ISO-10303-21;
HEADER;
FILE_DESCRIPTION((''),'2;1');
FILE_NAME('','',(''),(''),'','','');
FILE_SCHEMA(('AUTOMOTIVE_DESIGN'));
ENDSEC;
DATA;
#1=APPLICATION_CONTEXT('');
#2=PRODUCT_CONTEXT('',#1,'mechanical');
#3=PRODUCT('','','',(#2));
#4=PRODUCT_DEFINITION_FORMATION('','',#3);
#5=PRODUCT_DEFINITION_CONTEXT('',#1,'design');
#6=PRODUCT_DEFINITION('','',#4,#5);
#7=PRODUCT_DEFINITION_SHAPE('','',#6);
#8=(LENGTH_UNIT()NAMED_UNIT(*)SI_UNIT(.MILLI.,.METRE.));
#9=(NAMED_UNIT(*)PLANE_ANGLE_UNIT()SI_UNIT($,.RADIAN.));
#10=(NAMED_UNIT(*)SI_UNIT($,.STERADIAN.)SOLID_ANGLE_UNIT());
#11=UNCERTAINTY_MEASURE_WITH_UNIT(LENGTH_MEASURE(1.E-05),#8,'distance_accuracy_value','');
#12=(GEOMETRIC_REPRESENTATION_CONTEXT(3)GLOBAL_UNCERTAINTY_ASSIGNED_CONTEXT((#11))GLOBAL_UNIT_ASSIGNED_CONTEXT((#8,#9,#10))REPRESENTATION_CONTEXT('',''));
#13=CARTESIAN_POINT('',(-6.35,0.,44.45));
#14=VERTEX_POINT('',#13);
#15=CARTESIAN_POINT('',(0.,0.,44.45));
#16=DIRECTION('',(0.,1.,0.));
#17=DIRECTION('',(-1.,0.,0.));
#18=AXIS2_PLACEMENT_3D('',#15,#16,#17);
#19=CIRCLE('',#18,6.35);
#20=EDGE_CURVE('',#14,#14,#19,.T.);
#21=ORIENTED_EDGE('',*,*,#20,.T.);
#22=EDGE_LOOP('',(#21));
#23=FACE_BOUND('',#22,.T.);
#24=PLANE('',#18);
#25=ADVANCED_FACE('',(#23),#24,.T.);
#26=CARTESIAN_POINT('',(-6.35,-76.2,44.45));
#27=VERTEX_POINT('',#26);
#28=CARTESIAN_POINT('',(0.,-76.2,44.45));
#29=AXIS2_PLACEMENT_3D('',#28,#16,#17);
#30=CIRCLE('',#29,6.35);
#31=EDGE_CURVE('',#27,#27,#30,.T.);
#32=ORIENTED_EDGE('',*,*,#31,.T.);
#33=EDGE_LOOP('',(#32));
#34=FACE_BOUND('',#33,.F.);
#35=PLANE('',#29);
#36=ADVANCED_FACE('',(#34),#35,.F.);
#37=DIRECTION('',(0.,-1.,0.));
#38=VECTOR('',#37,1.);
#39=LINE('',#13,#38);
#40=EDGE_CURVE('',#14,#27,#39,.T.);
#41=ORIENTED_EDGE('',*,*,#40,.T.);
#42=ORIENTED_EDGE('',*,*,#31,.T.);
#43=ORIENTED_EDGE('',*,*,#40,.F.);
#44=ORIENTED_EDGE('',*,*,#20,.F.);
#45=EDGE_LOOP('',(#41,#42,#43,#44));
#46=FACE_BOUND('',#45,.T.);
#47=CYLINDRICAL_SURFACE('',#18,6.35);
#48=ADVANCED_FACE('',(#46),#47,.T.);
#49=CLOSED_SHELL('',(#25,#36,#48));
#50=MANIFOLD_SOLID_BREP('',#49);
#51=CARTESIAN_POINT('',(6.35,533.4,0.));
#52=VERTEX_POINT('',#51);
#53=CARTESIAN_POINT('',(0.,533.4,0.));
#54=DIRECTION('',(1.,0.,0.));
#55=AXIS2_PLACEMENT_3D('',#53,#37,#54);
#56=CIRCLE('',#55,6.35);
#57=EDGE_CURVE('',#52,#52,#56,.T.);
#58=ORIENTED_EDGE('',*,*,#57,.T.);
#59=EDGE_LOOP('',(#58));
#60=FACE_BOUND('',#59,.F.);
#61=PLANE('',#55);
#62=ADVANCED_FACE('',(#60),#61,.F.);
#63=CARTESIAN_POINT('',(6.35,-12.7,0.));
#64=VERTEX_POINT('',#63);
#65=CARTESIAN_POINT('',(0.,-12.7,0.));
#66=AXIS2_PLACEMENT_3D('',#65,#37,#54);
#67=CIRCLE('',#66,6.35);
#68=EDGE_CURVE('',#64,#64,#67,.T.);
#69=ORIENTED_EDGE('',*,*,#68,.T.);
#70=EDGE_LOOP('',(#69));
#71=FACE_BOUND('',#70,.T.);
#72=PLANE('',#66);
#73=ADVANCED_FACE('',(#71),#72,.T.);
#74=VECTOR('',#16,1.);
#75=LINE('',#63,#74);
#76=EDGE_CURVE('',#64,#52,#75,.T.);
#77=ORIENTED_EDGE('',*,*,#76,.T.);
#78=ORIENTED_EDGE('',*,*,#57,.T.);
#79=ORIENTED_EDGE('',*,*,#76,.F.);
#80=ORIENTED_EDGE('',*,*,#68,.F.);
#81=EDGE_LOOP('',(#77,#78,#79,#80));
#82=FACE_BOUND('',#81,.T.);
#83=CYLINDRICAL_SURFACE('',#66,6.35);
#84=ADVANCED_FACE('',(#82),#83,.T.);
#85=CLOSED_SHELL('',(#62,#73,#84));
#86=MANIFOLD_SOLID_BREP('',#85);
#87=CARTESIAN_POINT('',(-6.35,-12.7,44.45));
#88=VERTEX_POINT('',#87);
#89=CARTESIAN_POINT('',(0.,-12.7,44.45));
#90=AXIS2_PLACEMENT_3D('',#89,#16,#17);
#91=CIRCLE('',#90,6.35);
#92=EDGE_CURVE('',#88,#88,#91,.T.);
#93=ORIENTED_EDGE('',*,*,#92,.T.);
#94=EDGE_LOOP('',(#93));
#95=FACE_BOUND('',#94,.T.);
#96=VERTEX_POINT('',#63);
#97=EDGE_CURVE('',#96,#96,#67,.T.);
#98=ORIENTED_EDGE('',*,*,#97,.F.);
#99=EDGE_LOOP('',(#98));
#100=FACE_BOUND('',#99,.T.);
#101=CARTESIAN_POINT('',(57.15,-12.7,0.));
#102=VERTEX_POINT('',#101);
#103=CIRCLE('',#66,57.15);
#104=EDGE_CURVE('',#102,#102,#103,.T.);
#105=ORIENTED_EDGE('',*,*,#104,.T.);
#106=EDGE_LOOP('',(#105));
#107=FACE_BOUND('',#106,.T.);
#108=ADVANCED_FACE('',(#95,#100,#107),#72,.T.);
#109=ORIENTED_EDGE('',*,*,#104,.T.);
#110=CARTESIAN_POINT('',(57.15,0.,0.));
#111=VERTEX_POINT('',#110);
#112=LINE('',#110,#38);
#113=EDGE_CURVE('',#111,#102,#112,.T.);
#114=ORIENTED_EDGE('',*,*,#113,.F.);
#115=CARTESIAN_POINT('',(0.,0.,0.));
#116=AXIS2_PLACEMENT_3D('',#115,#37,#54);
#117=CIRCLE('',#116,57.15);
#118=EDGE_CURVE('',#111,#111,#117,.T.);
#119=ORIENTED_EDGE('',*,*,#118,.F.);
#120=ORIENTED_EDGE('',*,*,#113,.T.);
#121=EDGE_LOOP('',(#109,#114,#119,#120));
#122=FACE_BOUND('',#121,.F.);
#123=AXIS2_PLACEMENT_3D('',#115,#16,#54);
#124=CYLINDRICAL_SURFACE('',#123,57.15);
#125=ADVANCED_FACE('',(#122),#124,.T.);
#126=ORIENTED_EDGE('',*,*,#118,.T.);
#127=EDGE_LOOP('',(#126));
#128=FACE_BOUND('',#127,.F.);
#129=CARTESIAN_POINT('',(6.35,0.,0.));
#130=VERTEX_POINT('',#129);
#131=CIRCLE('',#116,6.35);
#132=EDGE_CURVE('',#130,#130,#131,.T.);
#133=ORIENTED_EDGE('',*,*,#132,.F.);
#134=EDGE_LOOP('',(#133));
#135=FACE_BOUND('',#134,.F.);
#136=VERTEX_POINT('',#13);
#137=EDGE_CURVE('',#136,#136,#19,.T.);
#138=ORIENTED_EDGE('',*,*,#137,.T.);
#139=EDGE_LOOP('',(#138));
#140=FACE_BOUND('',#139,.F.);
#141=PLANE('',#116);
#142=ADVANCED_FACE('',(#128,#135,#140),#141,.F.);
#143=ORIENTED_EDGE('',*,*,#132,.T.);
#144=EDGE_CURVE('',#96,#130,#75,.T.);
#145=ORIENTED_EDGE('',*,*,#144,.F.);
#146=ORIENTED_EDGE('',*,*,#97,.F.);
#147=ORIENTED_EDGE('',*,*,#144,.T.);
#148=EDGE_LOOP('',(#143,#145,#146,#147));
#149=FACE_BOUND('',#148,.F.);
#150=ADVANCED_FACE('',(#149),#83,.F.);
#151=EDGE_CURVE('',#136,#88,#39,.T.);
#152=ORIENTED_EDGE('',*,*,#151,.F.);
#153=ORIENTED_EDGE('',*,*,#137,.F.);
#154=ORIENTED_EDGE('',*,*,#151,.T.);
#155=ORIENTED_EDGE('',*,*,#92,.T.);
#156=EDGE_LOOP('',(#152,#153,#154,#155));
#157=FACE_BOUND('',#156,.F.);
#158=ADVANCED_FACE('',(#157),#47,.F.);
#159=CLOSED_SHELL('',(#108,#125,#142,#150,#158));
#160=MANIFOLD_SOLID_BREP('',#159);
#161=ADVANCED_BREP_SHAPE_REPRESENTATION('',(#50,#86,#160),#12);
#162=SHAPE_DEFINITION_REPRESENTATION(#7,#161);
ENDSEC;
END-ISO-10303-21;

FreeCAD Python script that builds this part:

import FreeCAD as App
import Part
import Sketcher
Q = App.Units.Quantity

doc = App.newDocument("Part")
body = doc.addObject("PartDesign::Body", "Body")

# Sketch on XZ plane
sketch1 = body.newObject("Sketcher::SketchObject", "Sketch")
sketch1.AttachmentSupport = (doc.getObject("XZ_Plane"), [""])
sketch1.MapMode = "FlatFace"
sketch1.addGeometry(Part.Circle(App.Vector(0, 0, 0), App.Vector(0, 0, 1), 57.15), False)
sketch1.addConstraint(Sketcher.Constraint("Coincident", 0, 3, -1, 1))
sketch1.addConstraint(Sketcher.Constraint("Diameter", 0, Q("4.5 in")))
pad1 = body.newObject("PartDesign::Pad", "Pad")
pad1.Profile = sketch1
pad1.Length = Q("0.5 in")

# Sketch on XZ plane
sketch2 = body.newObject("Sketcher::SketchObject", "Sketch001")
sketch2.AttachmentSupport = (doc.getObject("XZ_Plane"), [""])
sketch2.MapMode = "FlatFace"
sketch2.AttachmentOffset = App.Placement(App.Vector(0, 0, 0.5 * 25.4), App.Rotation())
sketch2.addGeometry(Part.Circle(App.Vector(0, 0, 0), App.Vector(0, 0, 1), 6.35), False)
sketch2.addConstraint(Sketcher.Constraint("Coincident", 0, 3, -1, 1))
sketch2.addConstraint(Sketcher.Constraint("Diameter", 0, Q("0.5 in")))
pocket1 = body.newObject("PartDesign::Pocket", "Pocket")
pocket1.Profile = sketch2
pocket1.Type = "ThroughAll"

# Sketch on XZ plane
sketch3 = body.newObject("Sketcher::SketchObject", "Sketch002")
sketch3.AttachmentSupport = (doc.getObject("XZ_Plane"), [""])
sketch3.MapMode = "FlatFace"
sketch3.addGeometry(Part.Circle(App.Vector(0, 44.45, 0), App.Vector(0, 0, 1), 6.35), False)
sketch3.addConstraint(Sketcher.Constraint("PointOnObject", 0, 3, -2))
sketch3.addConstraint(Sketcher.Constraint("Diameter", 0, Q("0.5 in")))
sketch3.addConstraint(Sketcher.Constraint("DistanceY", -1, 1, 0, 3, Q("1.75 in")))
pocket2 = body.newObject("PartDesign::Pocket", "Pocket001")
pocket2.Profile = sketch3
pocket2.Type = "ThroughAll"
pocket2.Reversed = True
body2 = doc.addObject("PartDesign::Body", "Body001")

# Sketch on XZ plane
sketch4 = body2.newObject("Sketcher::SketchObject", "Sketch003")
sketch4.AttachmentSupport = (doc.getObject("XZ_Plane001"), [""])
sketch4.MapMode = "FlatFace"
sketch4.AttachmentOffset = App.Placement(App.Vector(0, 0, 0.5 * 25.4), App.Rotation())
sketch4.addGeometry(Part.Circle(App.Vector(0, 0, 0), App.Vector(0, 0, 1), 6.35), False)
sketch4.addConstraint(Sketcher.Constraint("Coincident", 0, 3, -1, 1))
sketch4.addConstraint(Sketcher.Constraint("Diameter", 0, Q("0.5 in")))
pad2 = body2.newObject("PartDesign::Pad", "Pad001")
pad2.Profile = sketch4
pad2.Length = Q("21.5 in")
pad2.Reversed = True
body3 = doc.addObject("PartDesign::Body", "Body002")

# Sketch on XZ plane
sketch5 = body3.newObject("Sketcher::SketchObject", "Sketch004")
sketch5.AttachmentSupport = (doc.getObject("XZ_Plane002"), [""])
sketch5.MapMode = "FlatFace"
sketch5.addGeometry(Part.Circle(App.Vector(0, 44.45, 0), App.Vector(0, 0, 1), 6.35), False)
sketch5.addConstraint(Sketcher.Constraint("PointOnObject", 0, 3, -2))
sketch5.addConstraint(Sketcher.Constraint("Diameter", 0, Q("0.5 in")))
sketch5.addConstraint(Sketcher.Constraint("DistanceY", -1, 1, 0, 3, Q("1.75 in")))
pad3 = body3.newObject("PartDesign::Pad", "Pad002")
pad3.Profile = sketch5
pad3.Length = Q("3 in")

doc.recompute()
